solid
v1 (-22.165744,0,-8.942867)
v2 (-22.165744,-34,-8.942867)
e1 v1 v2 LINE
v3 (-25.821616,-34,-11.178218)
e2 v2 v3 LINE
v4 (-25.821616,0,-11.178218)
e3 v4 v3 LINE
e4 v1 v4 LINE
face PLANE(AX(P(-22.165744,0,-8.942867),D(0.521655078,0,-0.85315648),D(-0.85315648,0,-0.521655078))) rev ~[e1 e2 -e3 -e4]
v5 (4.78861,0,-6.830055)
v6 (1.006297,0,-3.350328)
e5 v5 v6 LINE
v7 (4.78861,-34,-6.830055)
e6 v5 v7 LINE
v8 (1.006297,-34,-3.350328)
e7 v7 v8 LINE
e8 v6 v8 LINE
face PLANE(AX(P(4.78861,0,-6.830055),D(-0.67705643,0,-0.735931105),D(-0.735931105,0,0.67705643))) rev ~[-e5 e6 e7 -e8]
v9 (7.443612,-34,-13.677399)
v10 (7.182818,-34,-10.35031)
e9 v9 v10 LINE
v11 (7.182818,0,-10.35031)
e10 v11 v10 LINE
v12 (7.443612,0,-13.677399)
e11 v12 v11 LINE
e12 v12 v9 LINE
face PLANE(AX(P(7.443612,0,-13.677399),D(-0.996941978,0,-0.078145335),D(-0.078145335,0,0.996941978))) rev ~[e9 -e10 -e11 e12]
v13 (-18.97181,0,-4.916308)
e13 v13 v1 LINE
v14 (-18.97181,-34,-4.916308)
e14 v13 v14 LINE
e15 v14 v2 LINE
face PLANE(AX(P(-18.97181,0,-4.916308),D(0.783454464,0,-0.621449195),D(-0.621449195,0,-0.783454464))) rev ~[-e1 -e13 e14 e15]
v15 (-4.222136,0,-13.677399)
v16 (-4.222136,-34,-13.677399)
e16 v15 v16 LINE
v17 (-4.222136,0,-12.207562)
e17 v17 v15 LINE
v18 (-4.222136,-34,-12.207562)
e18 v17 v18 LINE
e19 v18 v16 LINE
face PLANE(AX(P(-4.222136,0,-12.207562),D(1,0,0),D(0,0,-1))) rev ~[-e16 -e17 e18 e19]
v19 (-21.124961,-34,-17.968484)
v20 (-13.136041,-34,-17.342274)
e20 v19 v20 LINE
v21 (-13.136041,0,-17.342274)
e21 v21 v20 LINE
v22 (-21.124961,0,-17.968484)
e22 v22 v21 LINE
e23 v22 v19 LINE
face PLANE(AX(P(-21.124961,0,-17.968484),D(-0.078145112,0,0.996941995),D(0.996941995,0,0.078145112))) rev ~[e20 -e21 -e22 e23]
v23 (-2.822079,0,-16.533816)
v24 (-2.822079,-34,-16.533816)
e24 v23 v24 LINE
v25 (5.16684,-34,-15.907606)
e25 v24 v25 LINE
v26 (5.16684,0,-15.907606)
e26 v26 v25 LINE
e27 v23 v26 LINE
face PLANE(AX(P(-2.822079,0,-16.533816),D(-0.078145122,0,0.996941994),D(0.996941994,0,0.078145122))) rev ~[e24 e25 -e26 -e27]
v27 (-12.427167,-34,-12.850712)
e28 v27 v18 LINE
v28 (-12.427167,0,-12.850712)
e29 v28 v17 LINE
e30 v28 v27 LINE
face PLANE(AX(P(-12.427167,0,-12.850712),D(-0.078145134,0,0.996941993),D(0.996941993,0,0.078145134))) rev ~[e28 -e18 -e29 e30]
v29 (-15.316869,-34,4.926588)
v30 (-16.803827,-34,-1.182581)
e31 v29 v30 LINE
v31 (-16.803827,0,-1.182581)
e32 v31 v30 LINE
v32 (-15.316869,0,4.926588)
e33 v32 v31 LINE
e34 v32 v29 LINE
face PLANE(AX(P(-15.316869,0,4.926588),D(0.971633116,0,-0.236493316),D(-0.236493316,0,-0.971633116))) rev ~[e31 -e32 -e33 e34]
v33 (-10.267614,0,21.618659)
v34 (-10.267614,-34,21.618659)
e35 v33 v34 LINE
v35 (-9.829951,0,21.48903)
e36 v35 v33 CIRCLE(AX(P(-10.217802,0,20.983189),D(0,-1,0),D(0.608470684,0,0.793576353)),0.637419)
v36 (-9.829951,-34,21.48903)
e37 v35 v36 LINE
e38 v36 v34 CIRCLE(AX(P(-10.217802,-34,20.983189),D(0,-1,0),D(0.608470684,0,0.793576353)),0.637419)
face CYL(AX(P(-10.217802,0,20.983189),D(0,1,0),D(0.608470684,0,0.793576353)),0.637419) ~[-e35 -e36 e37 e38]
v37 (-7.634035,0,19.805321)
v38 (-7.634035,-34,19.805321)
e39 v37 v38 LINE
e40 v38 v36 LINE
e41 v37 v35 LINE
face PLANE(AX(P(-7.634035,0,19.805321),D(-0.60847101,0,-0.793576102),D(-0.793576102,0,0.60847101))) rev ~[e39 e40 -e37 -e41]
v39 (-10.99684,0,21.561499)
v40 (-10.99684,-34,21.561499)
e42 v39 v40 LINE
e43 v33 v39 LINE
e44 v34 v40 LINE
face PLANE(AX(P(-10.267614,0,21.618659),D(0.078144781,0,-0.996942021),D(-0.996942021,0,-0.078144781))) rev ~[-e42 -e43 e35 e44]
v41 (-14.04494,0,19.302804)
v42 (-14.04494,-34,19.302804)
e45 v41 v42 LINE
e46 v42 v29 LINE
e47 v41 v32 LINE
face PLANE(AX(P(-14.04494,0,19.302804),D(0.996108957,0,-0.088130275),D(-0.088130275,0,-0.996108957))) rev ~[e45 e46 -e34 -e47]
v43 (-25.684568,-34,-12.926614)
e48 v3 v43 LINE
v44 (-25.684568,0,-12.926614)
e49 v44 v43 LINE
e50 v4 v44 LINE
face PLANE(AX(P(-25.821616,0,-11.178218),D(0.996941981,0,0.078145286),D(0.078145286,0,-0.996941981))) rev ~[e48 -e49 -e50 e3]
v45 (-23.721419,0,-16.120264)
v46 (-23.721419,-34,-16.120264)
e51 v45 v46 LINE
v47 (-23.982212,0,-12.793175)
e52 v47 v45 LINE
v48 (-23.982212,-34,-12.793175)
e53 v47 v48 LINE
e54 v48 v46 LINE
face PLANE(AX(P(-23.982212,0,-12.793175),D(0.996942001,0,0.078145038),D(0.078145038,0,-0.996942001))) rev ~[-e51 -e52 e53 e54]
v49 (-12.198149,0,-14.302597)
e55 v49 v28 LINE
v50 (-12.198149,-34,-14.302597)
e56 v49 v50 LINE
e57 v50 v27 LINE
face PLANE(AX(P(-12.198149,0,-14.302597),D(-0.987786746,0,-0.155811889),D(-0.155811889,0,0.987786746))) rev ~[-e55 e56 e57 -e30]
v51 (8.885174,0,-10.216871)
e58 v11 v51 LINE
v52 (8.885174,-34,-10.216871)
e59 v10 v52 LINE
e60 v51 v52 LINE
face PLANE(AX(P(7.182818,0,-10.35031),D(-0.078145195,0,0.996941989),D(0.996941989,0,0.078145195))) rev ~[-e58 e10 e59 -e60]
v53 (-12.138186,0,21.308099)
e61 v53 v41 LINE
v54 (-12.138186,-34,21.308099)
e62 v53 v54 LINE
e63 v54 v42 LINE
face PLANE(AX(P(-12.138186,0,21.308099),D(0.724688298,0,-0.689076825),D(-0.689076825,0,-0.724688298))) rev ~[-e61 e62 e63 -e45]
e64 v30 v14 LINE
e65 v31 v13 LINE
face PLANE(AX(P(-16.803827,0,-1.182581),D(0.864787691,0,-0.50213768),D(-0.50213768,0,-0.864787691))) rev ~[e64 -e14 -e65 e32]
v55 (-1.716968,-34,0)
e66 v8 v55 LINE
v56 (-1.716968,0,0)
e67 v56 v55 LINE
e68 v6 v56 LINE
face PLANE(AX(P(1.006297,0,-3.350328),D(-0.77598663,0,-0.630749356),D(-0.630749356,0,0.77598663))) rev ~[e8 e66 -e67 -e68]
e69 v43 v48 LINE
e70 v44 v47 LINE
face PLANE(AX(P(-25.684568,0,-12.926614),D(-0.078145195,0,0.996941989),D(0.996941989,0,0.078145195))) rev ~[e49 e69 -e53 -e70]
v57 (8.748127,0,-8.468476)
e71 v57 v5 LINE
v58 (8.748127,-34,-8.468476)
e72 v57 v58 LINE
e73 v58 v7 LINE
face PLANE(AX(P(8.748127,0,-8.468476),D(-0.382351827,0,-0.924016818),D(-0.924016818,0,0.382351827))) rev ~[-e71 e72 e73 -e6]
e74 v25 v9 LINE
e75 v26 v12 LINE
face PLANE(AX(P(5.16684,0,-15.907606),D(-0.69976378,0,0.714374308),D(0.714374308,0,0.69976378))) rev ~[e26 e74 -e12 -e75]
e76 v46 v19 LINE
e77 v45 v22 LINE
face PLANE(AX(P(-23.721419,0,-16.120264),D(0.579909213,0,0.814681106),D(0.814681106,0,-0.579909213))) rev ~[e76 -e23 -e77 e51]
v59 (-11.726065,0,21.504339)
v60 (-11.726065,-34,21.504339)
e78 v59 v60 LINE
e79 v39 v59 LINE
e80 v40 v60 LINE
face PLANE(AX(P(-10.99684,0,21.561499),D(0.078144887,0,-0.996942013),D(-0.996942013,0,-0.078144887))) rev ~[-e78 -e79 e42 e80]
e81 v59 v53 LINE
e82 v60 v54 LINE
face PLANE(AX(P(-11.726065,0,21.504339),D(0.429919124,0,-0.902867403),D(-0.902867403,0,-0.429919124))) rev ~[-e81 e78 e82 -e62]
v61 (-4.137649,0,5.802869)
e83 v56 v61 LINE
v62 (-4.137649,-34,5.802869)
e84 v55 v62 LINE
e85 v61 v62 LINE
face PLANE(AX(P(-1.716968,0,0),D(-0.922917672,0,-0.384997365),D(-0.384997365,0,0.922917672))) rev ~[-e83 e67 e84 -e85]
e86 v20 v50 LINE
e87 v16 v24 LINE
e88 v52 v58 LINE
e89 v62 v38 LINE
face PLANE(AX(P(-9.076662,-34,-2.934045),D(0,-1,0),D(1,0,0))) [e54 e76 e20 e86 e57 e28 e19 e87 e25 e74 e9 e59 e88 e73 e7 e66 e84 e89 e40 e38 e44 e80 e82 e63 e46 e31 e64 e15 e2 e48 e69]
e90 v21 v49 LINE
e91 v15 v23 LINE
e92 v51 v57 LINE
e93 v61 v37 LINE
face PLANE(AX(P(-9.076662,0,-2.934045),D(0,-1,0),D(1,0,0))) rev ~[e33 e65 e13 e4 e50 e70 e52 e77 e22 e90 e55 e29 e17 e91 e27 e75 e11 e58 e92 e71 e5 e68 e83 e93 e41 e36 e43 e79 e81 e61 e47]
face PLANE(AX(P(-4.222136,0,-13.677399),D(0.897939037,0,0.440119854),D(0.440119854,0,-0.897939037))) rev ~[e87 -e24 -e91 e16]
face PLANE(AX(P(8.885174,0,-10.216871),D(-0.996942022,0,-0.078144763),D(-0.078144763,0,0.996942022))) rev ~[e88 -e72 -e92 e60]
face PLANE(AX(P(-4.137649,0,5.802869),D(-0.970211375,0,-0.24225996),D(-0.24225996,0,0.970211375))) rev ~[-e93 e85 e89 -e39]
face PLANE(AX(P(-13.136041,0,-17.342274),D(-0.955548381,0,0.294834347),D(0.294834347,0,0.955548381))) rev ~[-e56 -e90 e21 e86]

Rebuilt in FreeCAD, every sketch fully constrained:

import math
import FreeCAD as App
import Part
import Sketcher

V = App.Vector

doc = App.newDocument("Part")
params = doc.addObject("Spreadsheet::Sheet", "Params")
for row, (alias, value) in enumerate([
    ("pad1_length", "34 mm"),
], start=1):
    params.set(f"A{row}", alias)
    params.set(f"B{row}", "=" + value)
    params.setAlias(f"B{row}", alias)

body = doc.addObject("PartDesign::Body", "Body")

# Sketch on XZ plane
sketch1 = body.newObject("Sketcher::SketchObject", "Sketch")
sketch1.AttachmentSupport = (doc.getObject("XZ_Plane"), [""])
sketch1.MapMode = "FlatFace"
sketch1.addGeometry([
    Part.LineSegment(V(-12.2, -14.3, 0), V(-12.43, -12.85, 0)),  # 0
    Part.LineSegment(V(-12.43, -12.85, 0), V(-4.22, -12.21, 0)),  # 1
    Part.LineSegment(V(-4.22, -12.21, 0), V(-4.22, -13.68, 0)),  # 2
    Part.LineSegment(V(-4.22, -13.68, 0), V(-2.82, -16.53, 0)),  # 3
    Part.LineSegment(V(-2.82, -16.53, 0), V(5.17, -15.91, 0)),  # 4
    Part.LineSegment(V(5.17, -15.91, 0), V(7.44, -13.68, 0)),  # 5
    Part.LineSegment(V(7.44, -13.68, 0), V(7.18, -10.35, 0)),  # 6
    Part.LineSegment(V(7.18, -10.35, 0), V(8.89, -10.22, 0)),  # 7
    Part.LineSegment(V(8.89, -10.22, 0), V(8.75, -8.47, 0)),  # 8
    Part.LineSegment(V(8.75, -8.47, 0), V(4.79, -6.83, 0)),  # 9
    Part.LineSegment(V(4.79, -6.83, 0), V(1.01, -3.35, 0)),  # 10
    Part.LineSegment(V(1.01, -3.35, 0), V(-1.72, 0, 0)),  # 11
    Part.LineSegment(V(-1.72, 0, 0), V(-4.14, 5.8, 0)),  # 12
    Part.LineSegment(V(-4.14, 5.8, 0), V(-7.63, 19.81, 0)),  # 13
    Part.LineSegment(V(-7.63, 19.81, 0), V(-9.83, 21.49, 0)),  # 14
    Part.ArcOfCircle(Part.Circle(V(-10.22, 20.98, 0), V(0, 0, 1), 0.64), math.radians(53), math.radians(94)),  # 15
    Part.LineSegment(V(-10.27, 21.62, 0), V(-11, 21.56, 0)),  # 16
    Part.LineSegment(V(-11, 21.56, 0), V(-11.73, 21.5, 0)),  # 17
    Part.LineSegment(V(-11.73, 21.5, 0), V(-12.14, 21.31, 0)),  # 18
    Part.LineSegment(V(-12.14, 21.31, 0), V(-14.04, 19.3, 0)),  # 19
    Part.LineSegment(V(-14.04, 19.3, 0), V(-15.32, 4.93, 0)),  # 20
    Part.LineSegment(V(-15.32, 4.93, 0), V(-16.8, -1.18, 0)),  # 21
    Part.LineSegment(V(-16.8, -1.18, 0), V(-18.97, -4.92, 0)),  # 22
    Part.LineSegment(V(-18.97, -4.92, 0), V(-22.17, -8.94, 0)),  # 23
    Part.LineSegment(V(-22.17, -8.94, 0), V(-25.82, -11.18, 0)),  # 24
    Part.LineSegment(V(-25.82, -11.18, 0), V(-25.68, -12.93, 0)),  # 25
    Part.LineSegment(V(-25.68, -12.93, 0), V(-23.98, -12.79, 0)),  # 26
    Part.LineSegment(V(-23.98, -12.79, 0), V(-23.72, -16.12, 0)),  # 27
    Part.LineSegment(V(-23.72, -16.12, 0), V(-21.12, -17.97, 0)),  # 28
    Part.LineSegment(V(-21.12, -17.97, 0), V(-13.14, -17.34, 0)),  # 29
    Part.LineSegment(V(-13.14, -17.34, 0), V(-12.2, -14.3, 0)),  # 30
], False)
sketch1.addConstraint([
    Sketcher.Constraint("Coincident", 0, 2, 1, 1),
    Sketcher.Constraint("Coincident", 1, 2, 2, 1),
    Sketcher.Constraint("Coincident", 2, 2, 3, 1),
    Sketcher.Constraint("Coincident", 3, 2, 4, 1),
    Sketcher.Constraint("Coincident", 4, 2, 5, 1),
    Sketcher.Constraint("Coincident", 5, 2, 6, 1),
    Sketcher.Constraint("Coincident", 6, 2, 7, 1),
    Sketcher.Constraint("Coincident", 7, 2, 8, 1),
    Sketcher.Constraint("Coincident", 8, 2, 9, 1),
    Sketcher.Constraint("Coincident", 9, 2, 10, 1),
    Sketcher.Constraint("Coincident", 10, 2, 11, 1),
    Sketcher.Constraint("Coincident", 11, 2, 12, 1),
    Sketcher.Constraint("Coincident", 12, 2, 13, 1),
    Sketcher.Constraint("Coincident", 13, 2, 14, 1),
    Sketcher.Constraint("Tangent", 14, 2, 15, 1),
    Sketcher.Constraint("Coincident", 15, 2, 16, 1),
    Sketcher.Constraint("Coincident", 16, 2, 17, 1),
    Sketcher.Constraint("Coincident", 17, 2, 18, 1),
    Sketcher.Constraint("Coincident", 18, 2, 19, 1),
    Sketcher.Constraint("Coincident", 19, 2, 20, 1),
    Sketcher.Constraint("Coincident", 20, 2, 21, 1),
    Sketcher.Constraint("Coincident", 21, 2, 22, 1),
    Sketcher.Constraint("Coincident", 22, 2, 23, 1),
    Sketcher.Constraint("Coincident", 23, 2, 24, 1),
    Sketcher.Constraint("Coincident", 24, 2, 25, 1),
    Sketcher.Constraint("Coincident", 25, 2, 26, 1),
    Sketcher.Constraint("Coincident", 26, 2, 27, 1),
    Sketcher.Constraint("Coincident", 27, 2, 28, 1),
    Sketcher.Constraint("Coincident", 28, 2, 29, 1),
    Sketcher.Constraint("Coincident", 29, 2, 30, 1),
    Sketcher.Constraint("Coincident", 30, 2, 0, 1),
    Sketcher.Constraint("Vertical", 2),
    Sketcher.Constraint("PointOnObject", 11, 2, -1),
    Sketcher.Constraint("Parallel", 1, 4),
    Sketcher.Constraint("Perpendicular", 4, 6),
    Sketcher.Constraint("Perpendicular", 6, 7),
    Sketcher.Constraint("Perpendicular", 7, 8),
    Sketcher.Constraint("Perpendicular", 8, 16),
    Sketcher.Constraint("Parallel", 16, 17),
    Sketcher.Constraint("Perpendicular", 17, 25),
    Sketcher.Constraint("Perpendicular", 25, 26),
    Sketcher.Constraint("Perpendicular", 26, 27),
    Sketcher.Constraint("Perpendicular", 27, 29),
    Sketcher.Constraint("Horizontal", 2, 2, 5, 2),
    Sketcher.Constraint("Equal", 16, 17),
    Sketcher.Constraint("Equal", 14, 19),
    Sketcher.Constraint("Equal", 13, 20),
    Sketcher.Constraint("Equal", 12, 21),
    Sketcher.Constraint("Equal", 11, 22),
    Sketcher.Constraint("Equal", 10, 23),
    Sketcher.Constraint("Equal", 9, 24),
    Sketcher.Constraint("Equal", 8, 25),
    Sketcher.Constraint("Equal", 7, 26),
    Sketcher.Constraint("Equal", 6, 27),
    Sketcher.Constraint("Equal", 5, 28),
    Sketcher.Constraint("Equal", 4, 29),
    Sketcher.Constraint("Equal", 3, 30),
    Sketcher.Constraint("Radius", 15, 0.637419),
    Sketcher.Constraint("DistanceX", 9, 2, 5, 2, 2.655002),
    Sketcher.Constraint("Distance", 1, 8.230199),
    Sketcher.Constraint("DistanceX", 15, 3, -1, 1, 10.217802),
    Sketcher.Constraint("DistanceY", 2, 2, -1, 1, 13.677399),
    Sketcher.Constraint("DistanceY", -1, 1, 16, 2, 21.561499),
    Sketcher.Constraint("DistanceY", -1, 1, 18, 2, 21.308099),
    Sketcher.Constraint("DistanceY", 0, 2, 15, 3, 33.833901),
    Sketcher.Constraint("DistanceX", 14, 2, 12, 2, 5.692302),
    Sketcher.Constraint("DistanceX", 19, 2, 16, 2, 3.0481),
    Sketcher.Constraint("DistanceX", 20, 2, 11, 2, 13.599901),
    Sketcher.Constraint("DistanceX", 25, 2, 0, 2, 13.257401),
    Sketcher.Constraint("DistanceX", 26, 2, 22, 2, 5.010402),
    Sketcher.Constraint("DistanceY", 30, 2, 2, 2, 0.625198),
    Sketcher.Constraint("Distance", 3, 3.181081),
    Sketcher.Constraint("Distance", 17, 0.731462),
    Sketcher.Constraint("Distance", 25, 1.753759),
    Sketcher.Constraint("DistanceY", 2, 2, 2, 1, 1.469837),
    Sketcher.Constraint("DistanceY", -1, 1, 15, 3, 20.983189),
    Sketcher.Constraint("DistanceX", 3, 2, -1, 1, 2.822079),
    Sketcher.Constraint("DistanceX", -1, 1, 4, 2, 5.16684),
    Sketcher.Constraint("DistanceY", 6, 2, -1, 1, 10.35031),
    Sketcher.Constraint("DistanceY", 7, 2, -1, 1, 10.216871),
    Sketcher.Constraint("DistanceX", -1, 1, 9, 2, 4.78861),
    Sketcher.Constraint("DistanceY", 10, 2, -1, 1, 3.350328),
    Sketcher.Constraint("DistanceX", 12, 2, -1, 1, 4.137649),
    Sketcher.Constraint("DistanceY", -1, 1, 12, 2, 5.802869),
    Sketcher.Constraint("DistanceY", -1, 1, 13, 2, 19.805321),
    Sketcher.Constraint("DistanceX", 20, 2, -1, 1, 15.316869),
    Sketcher.Constraint("DistanceY", 21, 2, -1, 1, 1.182581),
    Sketcher.Constraint("DistanceX", 22, 2, -1, 1, 18.97181),
    Sketcher.Constraint("DistanceX", 28, 2, -1, 1, 21.124961),
    Sketcher.Constraint("DistanceX", 30, 2, -1, 1, 12.198149),
    Sketcher.Constraint("DistanceY", 8, 2, 9, 2, 1.638421),
    Sketcher.Constraint("DistanceX", 10, 2, 8, 2, 7.74183),
    Sketcher.Constraint("DistanceX", 18, 2, 17, 2, 0.412121),
])
pad1 = body.newObject("PartDesign::Pad", "Pad")
pad1.Profile = sketch1
pad1.setExpression("Length", "Params.pad1_length")

doc.recompute()
